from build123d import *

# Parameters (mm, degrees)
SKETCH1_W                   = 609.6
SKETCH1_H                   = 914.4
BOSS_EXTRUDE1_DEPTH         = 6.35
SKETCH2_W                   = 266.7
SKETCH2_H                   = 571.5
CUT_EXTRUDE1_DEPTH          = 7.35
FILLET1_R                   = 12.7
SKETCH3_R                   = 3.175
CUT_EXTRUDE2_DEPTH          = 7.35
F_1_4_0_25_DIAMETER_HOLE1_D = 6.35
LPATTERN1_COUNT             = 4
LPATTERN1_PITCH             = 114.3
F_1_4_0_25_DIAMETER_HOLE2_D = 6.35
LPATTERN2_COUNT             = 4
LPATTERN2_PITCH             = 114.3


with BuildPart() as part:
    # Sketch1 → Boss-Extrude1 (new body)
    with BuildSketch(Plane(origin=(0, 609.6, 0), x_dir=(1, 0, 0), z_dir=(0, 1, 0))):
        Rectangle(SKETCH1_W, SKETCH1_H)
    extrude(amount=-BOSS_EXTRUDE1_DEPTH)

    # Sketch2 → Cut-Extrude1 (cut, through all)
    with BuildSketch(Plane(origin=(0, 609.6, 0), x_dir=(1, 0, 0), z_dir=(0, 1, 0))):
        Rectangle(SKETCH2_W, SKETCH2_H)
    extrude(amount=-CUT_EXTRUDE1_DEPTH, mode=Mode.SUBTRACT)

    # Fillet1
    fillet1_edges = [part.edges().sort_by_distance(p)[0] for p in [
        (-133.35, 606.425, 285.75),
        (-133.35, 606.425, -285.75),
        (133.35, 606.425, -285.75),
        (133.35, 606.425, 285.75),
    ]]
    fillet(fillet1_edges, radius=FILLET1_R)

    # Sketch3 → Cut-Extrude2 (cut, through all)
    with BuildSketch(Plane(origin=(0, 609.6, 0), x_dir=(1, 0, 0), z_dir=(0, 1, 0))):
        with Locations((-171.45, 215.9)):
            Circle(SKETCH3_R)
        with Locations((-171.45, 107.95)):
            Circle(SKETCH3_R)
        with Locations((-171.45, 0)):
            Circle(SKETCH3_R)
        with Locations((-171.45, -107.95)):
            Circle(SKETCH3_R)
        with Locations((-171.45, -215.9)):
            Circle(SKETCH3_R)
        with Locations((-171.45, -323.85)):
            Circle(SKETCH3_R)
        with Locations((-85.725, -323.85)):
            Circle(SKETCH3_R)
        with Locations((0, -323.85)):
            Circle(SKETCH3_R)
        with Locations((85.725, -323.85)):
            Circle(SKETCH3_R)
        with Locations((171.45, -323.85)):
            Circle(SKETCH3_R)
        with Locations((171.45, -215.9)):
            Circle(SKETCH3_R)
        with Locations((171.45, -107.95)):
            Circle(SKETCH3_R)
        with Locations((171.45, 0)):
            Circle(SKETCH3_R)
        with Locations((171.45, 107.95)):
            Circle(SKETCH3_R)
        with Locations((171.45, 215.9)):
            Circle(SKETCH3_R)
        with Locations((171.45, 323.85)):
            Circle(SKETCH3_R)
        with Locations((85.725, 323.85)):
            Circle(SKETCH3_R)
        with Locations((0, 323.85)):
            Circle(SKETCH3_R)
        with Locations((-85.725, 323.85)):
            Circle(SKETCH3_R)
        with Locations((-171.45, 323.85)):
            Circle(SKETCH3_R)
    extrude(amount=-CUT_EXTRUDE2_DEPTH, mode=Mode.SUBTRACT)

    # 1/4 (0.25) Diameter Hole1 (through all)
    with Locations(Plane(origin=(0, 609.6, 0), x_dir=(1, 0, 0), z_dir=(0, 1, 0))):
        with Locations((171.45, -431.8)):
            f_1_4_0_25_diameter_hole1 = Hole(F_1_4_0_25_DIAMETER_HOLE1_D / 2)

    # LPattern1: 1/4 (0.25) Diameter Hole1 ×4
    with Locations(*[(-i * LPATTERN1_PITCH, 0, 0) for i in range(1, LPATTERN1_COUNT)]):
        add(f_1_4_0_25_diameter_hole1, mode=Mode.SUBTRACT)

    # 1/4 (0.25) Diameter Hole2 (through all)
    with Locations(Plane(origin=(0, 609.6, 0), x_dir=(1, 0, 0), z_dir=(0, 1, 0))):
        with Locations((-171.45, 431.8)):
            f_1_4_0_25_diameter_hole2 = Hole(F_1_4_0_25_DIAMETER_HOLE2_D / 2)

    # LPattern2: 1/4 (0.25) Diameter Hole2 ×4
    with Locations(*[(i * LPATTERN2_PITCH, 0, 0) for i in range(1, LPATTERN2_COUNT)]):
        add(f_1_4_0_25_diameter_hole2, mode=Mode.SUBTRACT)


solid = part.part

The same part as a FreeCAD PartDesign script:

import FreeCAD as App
import Part
import Sketcher
from FreeCAD import Vector
Q = App.Units.Quantity


def edges_at(feature, points):
    """Names of the edges that pass closest to the given points."""
    edges = feature.Shape.Edges
    near = lambda p: min(range(len(edges)), key=lambda i: edges[i].distToShape(Part.Vertex(*p))[0])
    return sorted({f"Edge{near(p) + 1}" for p in points})

doc = App.newDocument("Part")
body = doc.addObject("PartDesign::Body", "Body")

sketch1 = body.newObject("Sketcher::SketchObject", "Sketch")
sketch1.AttachmentSupport = (doc.getObject("XZ_Plane"), [""])
sketch1.MapMode = "FlatFace"
sketch1.AttachmentOffset = App.Placement(Vector(0, 0, -24 * 25.4), App.Rotation())
sketch1.addGeometry(Part.LineSegment(Vector(-305, -457, 0), Vector(-305, 457, 0)), False)
sketch1.addGeometry(Part.LineSegment(Vector(-305, 457, 0), Vector(305, 457, 0)), False)
sketch1.addGeometry(Part.LineSegment(Vector(305, 457, 0), Vector(305, -457, 0)), False)
sketch1.addGeometry(Part.LineSegment(Vector(305, -457, 0), Vector(-305, -457, 0)), False)
sketch1.addConstraint(Sketcher.Constraint("Coincident", 0, 2, 1, 1))
sketch1.addConstraint(Sketcher.Constraint("Coincident", 1, 2, 2, 1))
sketch1.addConstraint(Sketcher.Constraint("Coincident", 2, 2, 3, 1))
sketch1.addConstraint(Sketcher.Constraint("Coincident", 3, 2, 0, 1))
sketch1.addConstraint(Sketcher.Constraint("Vertical", 0))
sketch1.addConstraint(Sketcher.Constraint("Horizontal", 1))
sketch1.addConstraint(Sketcher.Constraint("Vertical", 2))
sketch1.addConstraint(Sketcher.Constraint("Horizontal", 3))
sketch1.addConstraint(Sketcher.Constraint("Symmetric", 0, 2, 2, 2, -1, 1))
sketch1.addConstraint(Sketcher.Constraint("DistanceX", 1, 1, 1, 2, Q("24 in")))
sketch1.addConstraint(Sketcher.Constraint("DistanceY", 0, 1, 0, 2, Q("36 in")))
pad1 = body.newObject("PartDesign::Pad", "Pad")
pad1.Profile = sketch1
pad1.Length = Q("0.25 in")

sketch2 = body.newObject("Sketcher::SketchObject", "Sketch001")
sketch2.AttachmentSupport = (doc.getObject("XZ_Plane"), [""])
sketch2.MapMode = "FlatFace"
sketch2.AttachmentOffset = App.Placement(Vector(0, 0, -24 * 25.4), App.Rotation())
sketch2.addGeometry(Part.LineSegment(Vector(-133, -286, 0), Vector(-133, 286, 0)), False)
sketch2.addGeometry(Part.LineSegment(Vector(-133, 286, 0), Vector(133, 286, 0)), False)
sketch2.addGeometry(Part.LineSegment(Vector(133, 286, 0), Vector(133, -286, 0)), False)
sketch2.addGeometry(Part.LineSegment(Vector(133, -286, 0), Vector(-133, -286, 0)), False)
sketch2.addConstraint(Sketcher.Constraint("Coincident", 0, 2, 1, 1))
sketch2.addConstraint(Sketcher.Constraint("Coincident", 1, 2, 2, 1))
sketch2.addConstraint(Sketcher.Constraint("Coincident", 2, 2, 3, 1))
sketch2.addConstraint(Sketcher.Constraint("Coincident", 3, 2, 0, 1))
sketch2.addConstraint(Sketcher.Constraint("Vertical", 0))
sketch2.addConstraint(Sketcher.Constraint("Horizontal", 1))
sketch2.addConstraint(Sketcher.Constraint("Vertical", 2))
sketch2.addConstraint(Sketcher.Constraint("Horizontal", 3))
sketch2.addConstraint(Sketcher.Constraint("Symmetric", 0, 2, 2, 2, -1, 1))
sketch2.addConstraint(Sketcher.Constraint("DistanceX", 1, 1, 1, 2, Q("10.5 in")))
sketch2.addConstraint(Sketcher.Constraint("DistanceY", 0, 1, 0, 2, Q("22.5 in")))
pocket1 = body.newObject("PartDesign::Pocket", "Pocket")
pocket1.Profile = sketch2
pocket1.Type = "ThroughAll"
pocket1.Reversed = True
doc.recompute()

fillet = body.newObject("PartDesign::Fillet", "Fillet")
fillet.Base = (pocket1, edges_at(pocket1, [
    (-133.35, 606.425, 285.75),
    (-133.35, 606.425, -285.75),
    (133.35, 606.425, -285.75),
    (133.35, 606.425, 285.75),
]))
fillet.Radius = Q("0.5 in")

sketch3 = body.newObject("Sketcher::SketchObject", "Sketch002")
sketch3.AttachmentSupport = (doc.getObject("XZ_Plane"), [""])
sketch3.MapMode = "FlatFace"
sketch3.AttachmentOffset = App.Placement(Vector(0, 0, -24 * 25.4), App.Rotation())
sketch3.addGeometry(Part.Circle(Vector(-171.4, -215.9, 0), Vector(0, 0, 1), 3.2), False)
sketch3.addGeometry(Part.Circle(Vector(-171.4, -108, 0), Vector(0, 0, 1), 3.2), False)
sketch3.addGeometry(Part.Circle(Vector(-171.4, 0, 0), Vector(0, 0, 1), 3.2), False)
sketch3.addGeometry(Part.Circle(Vector(-171.4, 108, 0), Vector(0, 0, 1), 3.2), False)
sketch3.addGeometry(Part.Circle(Vector(-171.4, 215.9, 0), Vector(0, 0, 1), 3.2), False)
sketch3.addGeometry(Part.Circle(Vector(-171.4, 323.9, 0), Vector(0, 0, 1), 3.2), False)
sketch3.addGeometry(Part.Circle(Vector(-85.7, 323.9, 0), Vector(0, 0, 1), 3.2), False)
sketch3.addGeometry(Part.Circle(Vector(0, 323.9, 0), Vector(0, 0, 1), 3.2), False)
sketch3.addGeometry(Part.Circle(Vector(85.7, 323.9, 0), Vector(0, 0, 1), 3.2), False)
sketch3.addGeometry(Part.Circle(Vector(171.4, 323.9, 0), Vector(0, 0, 1), 3.2), False)
sketch3.addGeometry(Part.Circle(Vector(171.4, 215.9, 0), Vector(0, 0, 1), 3.2), False)
sketch3.addGeometry(Part.Circle(Vector(171.4, 108, 0), Vector(0, 0, 1), 3.2), False)
sketch3.addGeometry(Part.Circle(Vector(171.4, 0, 0), Vector(0, 0, 1), 3.2), False)
sketch3.addGeometry(Part.Circle(Vector(171.4, -108, 0), Vector(0, 0, 1), 3.2), False)
sketch3.addGeometry(Part.Circle(Vector(171.4, -215.9, 0), Vector(0, 0, 1), 3.2), False)
sketch3.addGeometry(Part.Circle(Vector(171.4, -323.9, 0), Vector(0, 0, 1), 3.2), False)
sketch3.addGeometry(Part.Circle(Vector(85.7, -323.9, 0), Vector(0, 0, 1), 3.2), False)
sketch3.addGeometry(Part.Circle(Vector(0, -323.9, 0), Vector(0, 0, 1), 3.2), False)
sketch3.addGeometry(Part.Circle(Vector(-85.7, -323.9, 0), Vector(0, 0, 1), 3.2), False)
sketch3.addGeometry(Part.Circle(Vector(-171.4, -323.9, 0), Vector(0, 0, 1), 3.2), False)
sketch3.addConstraint(Sketcher.Constraint("Equal", 0, 1))
sketch3.addConstraint(Sketcher.Constraint("Equal", 1, 2))
sketch3.addConstraint(Sketcher.Constraint("Equal", 2, 3))
sketch3.addConstraint(Sketcher.Constraint("Equal", 3, 4))
sketch3.addConstraint(Sketcher.Constraint("Equal", 4, 5))
sketch3.addConstraint(Sketcher.Constraint("Equal", 5, 6))
sketch3.addConstraint(Sketcher.Constraint("Equal", 6, 7))
sketch3.addConstraint(Sketcher.Constraint("Equal", 7, 8))
sketch3.addConstraint(Sketcher.Constraint("Equal", 8, 9))
sketch3.addConstraint(Sketcher.Constraint("Equal", 9, 10))
sketch3.addConstraint(Sketcher.Constraint("Equal", 10, 11))
sketch3.addConstraint(Sketcher.Constraint("Equal", 11, 12))
sketch3.addConstraint(Sketcher.Constraint("Equal", 12, 13))
sketch3.addConstraint(Sketcher.Constraint("Equal", 13, 14))
sketch3.addConstraint(Sketcher.Constraint("Equal", 14, 15))
sketch3.addConstraint(Sketcher.Constraint("Equal", 15, 16))
sketch3.addConstraint(Sketcher.Constraint("Equal", 16, 17))
sketch3.addConstraint(Sketcher.Constraint("Equal", 17, 18))
sketch3.addConstraint(Sketcher.Constraint("Equal", 18, 19))
sketch3.addConstraint(Sketcher.Constraint("Symmetric", 0, 3, 10, 3, -1, 1))
sketch3.addConstraint(Sketcher.Constraint("Symmetric", 1, 3, 11, 3, -1, 1))
sketch3.addConstraint(Sketcher.Constraint("Symmetric", 2, 3, 12, 3, -1, 1))
sketch3.addConstraint(Sketcher.Constraint("Symmetric", 3, 3, 13, 3, -1, 1))
sketch3.addConstraint(Sketcher.Constraint("Symmetric", 4, 3, 14, 3, -1, 1))
sketch3.addConstraint(Sketcher.Constraint("Symmetric", 5, 3, 15, 3, -1, 1))
sketch3.addConstraint(Sketcher.Constraint("Symmetric", 6, 3, 16, 3, -1, 1))
sketch3.addConstraint(Sketcher.Constraint("Symmetric", 7, 3, 17, 3, -1, 1))
sketch3.addConstraint(Sketcher.Constraint("Symmetric", 8, 3, 18, 3, -1, 1))
sketch3.addConstraint(Sketcher.Constraint("Symmetric", 9, 3, 19, 3, -1, 1))
sketch3.addConstraint(Sketcher.Constraint("Symmetric", 6, 3, 8, 3, -2))
sketch3.addConstraint(Sketcher.Constraint("Symmetric", 5, 3, 9, 3, -2))
sketch3.addConstraint(Sketcher.Constraint("Symmetric", 4, 3, 10, 3, -2))
sketch3.addConstraint(Sketcher.Constraint("Symmetric", 3, 3, 11, 3, -2))
sketch3.addConstraint(Sketcher.Constraint("PointOnObject", 2, 3, -1))
sketch3.addConstraint(Sketcher.Constraint("PointOnObject", 7, 3, -2))
sketch3.addConstraint(Sketcher.Constraint("Horizontal", 5, 3, 6, 3))
sketch3.addConstraint(Sketcher.Constraint("Horizontal", 6, 3, 7, 3))
sketch3.addConstraint(Sketcher.Constraint("Vertical", 0, 3, 1, 3))
sketch3.addConstraint(Sketcher.Constraint("Vertical", 1, 3, 2, 3))
sketch3.addConstraint(Sketcher.Constraint("Vertical", 4, 3, 5, 3))
sketch3.addConstraint(Sketcher.Constraint("Diameter", 0, Q("0.25 in")))
sketch3.addConstraint(Sketcher.Constraint("DistanceY", 0, 3, 4, 3, Q("17 in")))
sketch3.addConstraint(Sketcher.Constraint("DistanceY", 1, 3, 5, 3, Q("17 in")))
sketch3.addConstraint(Sketcher.Constraint("DistanceY", 1, 3, 3, 3, Q("8.5 in")))
sketch3.addConstraint(Sketcher.Constraint("DistanceX", 5, 3, 9, 3, Q("13.5 in")))
sketch3.addConstraint(Sketcher.Constraint("DistanceX", 6, 3, 8, 3, Q("6.75 in")))
pocket2 = body.newObject("PartDesign::Pocket", "Pocket001")
pocket2.Profile = sketch3
pocket2.Type = "ThroughAll"
pocket2.Reversed = True

sketch4 = body.newObject("Sketcher::SketchObject", "Sketch003")
sketch4.AttachmentSupport = (doc.getObject("XZ_Plane"), [""])
sketch4.MapMode = "FlatFace"
sketch4.AttachmentOffset = App.Placement(Vector(0, 0, -24 * 25.4), App.Rotation())
sketch4.addGeometry(Part.Circle(Vector(171.4, 431.8, 0), Vector(0, 0, 1), 3.2), False)
sketch4.addConstraint(Sketcher.Constraint("Diameter", 0, Q("0.25 in")))
sketch4.addConstraint(Sketcher.Constraint("DistanceY", -1, 1, 0, 3, Q("17 in")))
sketch4.addConstraint(Sketcher.Constraint("DistanceX", -1, 1, 0, 3, Q("6.75 in")))
doc.recompute()
hole = body.newObject("PartDesign::Hole", "Hole")
hole.Profile = sketch4
hole.ThreadType = "None"
hole.Diameter = Q("0.25 in")
hole.DepthType = "ThroughAll"
hole.Reversed = True
doc.recompute()

linearpattern = body.newObject("PartDesign::LinearPattern", "LinearPattern")
linearpattern.Originals = [hole]
linearpattern.Direction = (doc.getObject("X_Axis"), [""])
linearpattern.Mode = "offset"
linearpattern.Offset = Q("4.5 in")
linearpattern.Occurrences = 4
linearpattern.Reversed = True
body.Tip = linearpattern

sketch5 = body.newObject("Sketcher::SketchObject", "Sketch004")
sketch5.AttachmentSupport = (doc.getObject("XZ_Plane"), [""])
sketch5.MapMode = "FlatFace"
sketch5.AttachmentOffset = App.Placement(Vector(0, 0, -24 * 25.4), App.Rotation())
sketch5.addGeometry(Part.Circle(Vector(-171.4, -431.8, 0), Vector(0, 0, 1), 3.2), False)
sketch5.addConstraint(Sketcher.Constraint("Diameter", 0, Q("0.25 in")))
sketch5.addConstraint(Sketcher.Constraint("DistanceY", 0, 3, -1, 1, Q("17 in")))
sketch5.addConstraint(Sketcher.Constraint("DistanceX", 0, 3, -1, 1, Q("6.75 in")))
doc.recompute()
hole2 = body.newObject("PartDesign::Hole", "Hole001")
hole2.Profile = sketch5
hole2.ThreadType = "None"
hole2.Diameter = Q("0.25 in")
hole2.DepthType = "ThroughAll"
hole2.Reversed = True
doc.recompute()

linearpattern2 = body.newObject("PartDesign::LinearPattern", "LinearPattern001")
linearpattern2.Originals = [hole2]
linearpattern2.Direction = (doc.getObject("X_Axis"), [""])
linearpattern2.Mode = "offset"
linearpattern2.Offset = Q("4.5 in")
linearpattern2.Occurrences = 4
body.Tip = linearpattern2

doc.recompute()
